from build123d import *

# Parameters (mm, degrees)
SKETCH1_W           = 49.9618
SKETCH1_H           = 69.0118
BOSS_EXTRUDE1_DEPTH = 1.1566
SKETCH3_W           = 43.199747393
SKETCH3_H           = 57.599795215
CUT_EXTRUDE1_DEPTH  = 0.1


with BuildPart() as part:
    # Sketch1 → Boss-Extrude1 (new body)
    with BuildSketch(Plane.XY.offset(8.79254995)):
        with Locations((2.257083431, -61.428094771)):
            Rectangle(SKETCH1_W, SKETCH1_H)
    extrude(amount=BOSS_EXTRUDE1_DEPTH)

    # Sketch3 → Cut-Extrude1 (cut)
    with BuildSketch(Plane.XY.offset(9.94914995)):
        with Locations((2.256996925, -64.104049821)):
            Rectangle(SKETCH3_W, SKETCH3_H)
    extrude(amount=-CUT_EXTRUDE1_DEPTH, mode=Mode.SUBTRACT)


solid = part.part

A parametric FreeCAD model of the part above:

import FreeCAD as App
import Part
import Sketcher
from FreeCAD import Vector
Q = App.Units.Quantity


def add_polygon(sketch, points):
    """Adds a closed chain of lines whose ends are joined by coincident constraints."""
    first, n = sketch.GeometryCount, len(points)
    for a, b in zip(points, points[1:] + points[:1]):
        sketch.addGeometry(Part.LineSegment(App.Vector(*a, 0), App.Vector(*b, 0)), False)
    for i in range(n):
        sketch.addConstraint(Sketcher.Constraint("Coincident", first + i, 2, first + (i + 1) % n, 1))

doc = App.newDocument("Part")
params = doc.addObject("Spreadsheet::Sheet", "Params")
for row, (alias, value) in enumerate([
    ("sketch1_width", "1.967 in"),
    ("sketch1_height", "2.717 in"),
    ("pad1_length", "1.1566 mm"),
    ("pocket1_length", "0.1 mm"),
], start=1):
    params.set(f"A{row}", alias)
    params.set(f"B{row}", "=" + value)
    params.setAlias(f"B{row}", alias)

body = doc.addObject("PartDesign::Body", "Body")

sketch1 = body.newObject("Sketcher::SketchObject", "Sketch")
sketch1.AttachmentSupport = (doc.getObject("XY_Plane"), [""])
sketch1.MapMode = "FlatFace"
sketch1.AttachmentOffset = App.Placement(Vector(0, 0, 8.79255), App.Rotation())
add_polygon(sketch1, [(-22.723817, -26.922195), (-22.723817, -95.933995), (27.237983, -95.933995), (27.237983, -26.922195)])
sketch1.addConstraint(Sketcher.Constraint("Vertical", 0))
sketch1.addConstraint(Sketcher.Constraint("Horizontal", 1))
sketch1.addConstraint(Sketcher.Constraint("Vertical", 2))
sketch1.addConstraint(Sketcher.Constraint("Horizontal", 3))
sketch1.addConstraint(Sketcher.Constraint("DistanceX", 1, 1, 1, 2, Q("1.967 in")))
sketch1.addConstraint(Sketcher.Constraint("DistanceY", 0, 2, 0, 1, Q("2.717 in")))
sketch1.addConstraint(Sketcher.Constraint("DistanceX", 0, 2, -1, 1, 22.723817))
sketch1.addConstraint(Sketcher.Constraint("DistanceY", 0, 2, -1, 1, 95.933995))
sketch1.setExpression("Constraints[8]", "Params.sketch1_width")
sketch1.setExpression("Constraints[9]", "Params.sketch1_height")
pad1 = body.newObject("PartDesign::Pad", "Pad")
pad1.Profile = sketch1
pad1.setExpression("Length", "Params.pad1_length")

sketch2 = body.newObject("Sketcher::SketchObject", "Sketch001")
sketch2.AttachmentSupport = (doc.getObject("XY_Plane"), [""])
sketch2.MapMode = "FlatFace"
sketch2.AttachmentOffset = App.Placement(Vector(0, 0, 9.94915), App.Rotation())
add_polygon(sketch2, [(-19.342877, -35.304152), (-19.342877, -92.903947), (23.856871, -92.903947), (23.856871, -35.304152)])
sketch2.addConstraint(Sketcher.Constraint("Vertical", 0))
sketch2.addConstraint(Sketcher.Constraint("Horizontal", 1))
sketch2.addConstraint(Sketcher.Constraint("Vertical", 2))
sketch2.addConstraint(Sketcher.Constraint("Horizontal", 3))
sketch2.addConstraint(Sketcher.Constraint("DistanceX", 1, 1, 1, 2, 43.199747))
sketch2.addConstraint(Sketcher.Constraint("DistanceY", 0, 2, 0, 1, 57.599795))
sketch2.addConstraint(Sketcher.Constraint("DistanceX", -1, 1, 1, 2, 23.856871))
sketch2.addConstraint(Sketcher.Constraint("DistanceY", 0, 2, -1, 1, 92.903947))
pocket1 = body.newObject("PartDesign::Pocket", "Pocket")
pocket1.Profile = sketch2
pocket1.setExpression("Length", "Params.pocket1_length")

doc.recompute()
